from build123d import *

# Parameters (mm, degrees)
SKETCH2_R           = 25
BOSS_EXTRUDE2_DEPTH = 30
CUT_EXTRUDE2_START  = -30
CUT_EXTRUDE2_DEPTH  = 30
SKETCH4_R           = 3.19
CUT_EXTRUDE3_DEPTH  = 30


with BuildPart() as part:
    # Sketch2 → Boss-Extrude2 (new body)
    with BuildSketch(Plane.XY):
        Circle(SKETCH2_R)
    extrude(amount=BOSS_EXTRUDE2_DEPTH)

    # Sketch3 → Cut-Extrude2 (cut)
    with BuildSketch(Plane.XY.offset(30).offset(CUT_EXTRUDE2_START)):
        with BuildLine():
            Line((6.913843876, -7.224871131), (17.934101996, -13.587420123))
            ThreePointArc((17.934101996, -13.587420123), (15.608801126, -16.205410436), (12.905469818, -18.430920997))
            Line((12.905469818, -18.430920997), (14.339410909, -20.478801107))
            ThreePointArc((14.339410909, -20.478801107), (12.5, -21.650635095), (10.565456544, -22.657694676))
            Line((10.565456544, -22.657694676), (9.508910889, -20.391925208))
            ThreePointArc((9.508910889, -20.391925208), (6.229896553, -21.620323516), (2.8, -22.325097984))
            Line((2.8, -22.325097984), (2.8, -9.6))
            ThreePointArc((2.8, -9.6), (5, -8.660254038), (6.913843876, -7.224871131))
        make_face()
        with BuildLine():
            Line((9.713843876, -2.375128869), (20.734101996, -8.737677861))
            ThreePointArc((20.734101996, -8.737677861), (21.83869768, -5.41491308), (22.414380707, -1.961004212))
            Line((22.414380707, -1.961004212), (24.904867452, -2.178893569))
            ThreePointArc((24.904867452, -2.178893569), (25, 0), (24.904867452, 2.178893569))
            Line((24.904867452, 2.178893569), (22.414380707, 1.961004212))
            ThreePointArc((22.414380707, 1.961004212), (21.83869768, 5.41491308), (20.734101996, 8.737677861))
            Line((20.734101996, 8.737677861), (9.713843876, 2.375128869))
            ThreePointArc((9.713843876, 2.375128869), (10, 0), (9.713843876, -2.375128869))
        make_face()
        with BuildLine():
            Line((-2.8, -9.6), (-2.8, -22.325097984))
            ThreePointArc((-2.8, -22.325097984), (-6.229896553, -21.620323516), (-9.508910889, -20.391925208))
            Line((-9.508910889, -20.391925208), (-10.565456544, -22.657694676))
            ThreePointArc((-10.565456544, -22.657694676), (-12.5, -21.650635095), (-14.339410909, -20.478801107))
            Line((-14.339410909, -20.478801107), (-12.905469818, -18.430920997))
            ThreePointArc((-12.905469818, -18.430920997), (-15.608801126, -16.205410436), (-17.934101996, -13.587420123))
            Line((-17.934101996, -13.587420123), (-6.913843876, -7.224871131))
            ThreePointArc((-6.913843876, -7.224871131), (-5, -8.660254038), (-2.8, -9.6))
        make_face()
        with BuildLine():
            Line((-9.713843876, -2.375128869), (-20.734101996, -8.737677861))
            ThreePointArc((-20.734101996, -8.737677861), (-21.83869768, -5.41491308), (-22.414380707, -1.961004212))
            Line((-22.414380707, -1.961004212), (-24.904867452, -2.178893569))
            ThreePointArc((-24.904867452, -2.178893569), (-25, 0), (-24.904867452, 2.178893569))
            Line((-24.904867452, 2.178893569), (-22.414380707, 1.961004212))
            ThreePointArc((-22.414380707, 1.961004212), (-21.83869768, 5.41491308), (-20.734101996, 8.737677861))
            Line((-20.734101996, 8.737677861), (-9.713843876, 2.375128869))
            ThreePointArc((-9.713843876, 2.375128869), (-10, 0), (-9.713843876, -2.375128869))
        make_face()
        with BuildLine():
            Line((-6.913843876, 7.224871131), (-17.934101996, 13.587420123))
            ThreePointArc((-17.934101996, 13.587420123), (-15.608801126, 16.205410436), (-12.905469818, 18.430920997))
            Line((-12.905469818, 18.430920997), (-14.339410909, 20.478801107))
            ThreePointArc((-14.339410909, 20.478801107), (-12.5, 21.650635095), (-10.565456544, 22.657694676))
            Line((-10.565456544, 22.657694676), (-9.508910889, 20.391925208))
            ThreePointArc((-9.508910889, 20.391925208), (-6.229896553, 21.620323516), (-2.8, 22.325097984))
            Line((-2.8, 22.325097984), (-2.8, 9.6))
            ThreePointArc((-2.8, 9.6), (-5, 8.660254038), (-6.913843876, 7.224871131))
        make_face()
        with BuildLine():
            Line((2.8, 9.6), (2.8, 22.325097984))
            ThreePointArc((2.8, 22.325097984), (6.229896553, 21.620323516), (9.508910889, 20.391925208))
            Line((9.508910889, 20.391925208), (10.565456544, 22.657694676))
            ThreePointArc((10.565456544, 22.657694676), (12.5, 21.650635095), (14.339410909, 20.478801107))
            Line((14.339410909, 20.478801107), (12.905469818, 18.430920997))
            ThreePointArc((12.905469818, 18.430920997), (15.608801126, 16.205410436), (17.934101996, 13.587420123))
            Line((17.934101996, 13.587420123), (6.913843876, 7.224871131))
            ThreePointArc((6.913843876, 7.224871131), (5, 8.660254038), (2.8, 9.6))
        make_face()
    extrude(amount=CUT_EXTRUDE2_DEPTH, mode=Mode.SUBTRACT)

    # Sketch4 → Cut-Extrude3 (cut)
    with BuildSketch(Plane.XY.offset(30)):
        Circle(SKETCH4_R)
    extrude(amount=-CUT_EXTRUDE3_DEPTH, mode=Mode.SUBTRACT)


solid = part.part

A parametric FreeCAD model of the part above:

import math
import FreeCAD as App
import Part
import Sketcher

V = App.Vector
Q = App.Units.Quantity

doc = App.newDocument("Part")
body = doc.addObject("PartDesign::Body", "Body")

sketch1 = body.newObject("Sketcher::SketchObject", "Sketch")
sketch1.AttachmentSupport = (doc.getObject("XY_Plane"), [""])
sketch1.MapMode = "FlatFace"
sketch1.addGeometry(Part.Circle(V(0, 0, 0), V(0, 0, 1), 25), False)
sketch1.addConstraint([
    Sketcher.Constraint("Coincident", 0, 3, -1, 1),
    Sketcher.Constraint("Diameter", 0, Q("50 mm")),
])
pad1 = body.newObject("PartDesign::Pad", "Pad")
pad1.Profile = sketch1
pad1.Length = 30

sketch2 = body.newObject("Sketcher::SketchObject", "Sketch001")
sketch2.AttachmentSupport = (doc.getObject("XY_Plane"), [""])
sketch2.MapMode = "FlatFace"
sketch2.addGeometry([
    Part.LineSegment(V(17.9, -13.6, 0), V(6.9, -7.2, 0)),
    Part.ArcOfCircle(Part.Circle(V(0, 0, 0), V(0, 0, 1), 10), math.radians(-74), math.radians(-46)),
    Part.LineSegment(V(2.8, -9.6, 0), V(2.8, -22.3, 0)),
    Part.ArcOfCircle(Part.Circle(V(0, 0, 0), V(0, 0, 1), 22.5), math.radians(-82.85), math.radians(-65)),
    Part.LineSegment(V(9.5, -20.4, 0), V(10.6, -22.7, 0)),
    Part.ArcOfCircle(Part.Circle(V(0, 0, 0), V(0, 0, 1), 25), math.radians(-65), math.radians(-55)),
    Part.LineSegment(V(14.3, -20.5, 0), V(12.9, -18.4, 0)),
    Part.ArcOfCircle(Part.Circle(V(0, 0, 0), V(0, 0, 1), 22.5), math.radians(-55), math.radians(-37.15)),
    Part.LineSegment(V(9.7, -2.4, 0), V(20.7, -8.7, 0)),
    Part.ArcOfCircle(Part.Circle(V(0, 0, 0), V(0, 0, 1), 22.5), math.radians(-22.85), math.radians(-5)),
    Part.LineSegment(V(22.4, -2, 0), V(24.9, -2.2, 0)),
    Part.ArcOfCircle(Part.Circle(V(0, 0, 0), V(0, 0, 1), 25), math.radians(-5), math.radians(5)),
    Part.LineSegment(V(24.9, 2.2, 0), V(22.4, 2, 0)),
    Part.ArcOfCircle(Part.Circle(V(0, 0, 0), V(0, 0, 1), 22.5), math.radians(5), math.radians(22.85)),
    Part.LineSegment(V(20.7, 8.7, 0), V(9.7, 2.4, 0)),
    Part.ArcOfCircle(Part.Circle(V(0, 0, 0), V(0, 0, 1), 10), math.radians(-14), math.radians(14)),
    Part.LineSegment(V(-2.8, -22.3, 0), V(-2.8, -9.6, 0)),
    Part.ArcOfCircle(Part.Circle(V(0, 0, 0), V(0, 0, 1), 10), math.radians(-134), math.radians(-106)),
    Part.LineSegment(V(-6.9, -7.2, 0), V(-17.9, -13.6, 0)),
    Part.ArcOfCircle(Part.Circle(V(0, 0, 0), V(0, 0, 1), 22.5), math.radians(-142.85), math.radians(-125)),
    Part.LineSegment(V(-12.9, -18.4, 0), V(-14.3, -20.5, 0)),
    Part.ArcOfCircle(Part.Circle(V(0, 0, 0), V(0, 0, 1), 25), math.radians(-125), math.radians(-115)),
    Part.LineSegment(V(-10.6, -22.7, 0), V(-9.5, -20.4, 0)),
    Part.ArcOfCircle(Part.Circle(V(0, 0, 0), V(0, 0, 1), 22.5), math.radians(-115), math.radians(-97.15)),
    Part.LineSegment(V(-20.7, -8.7, 0), V(-9.7, -2.4, 0)),
    Part.ArcOfCircle(Part.Circle(V(0, 0, 0), V(0, 0, 1), 10), math.radians(166), math.radians(194)),
    Part.LineSegment(V(-9.7, 2.4, 0), V(-20.7, 8.7, 0)),
    Part.ArcOfCircle(Part.Circle(V(0, 0, 0), V(0, 0, 1), 22.5), math.radians(157.15), math.radians(175)),
    Part.LineSegment(V(-22.4, 2, 0), V(-24.9, 2.2, 0)),
    Part.ArcOfCircle(Part.Circle(V(0, 0, 0), V(0, 0, 1), 25), math.radians(175), math.radians(185)),
    Part.LineSegment(V(-24.9, -2.2, 0), V(-22.4, -2, 0)),
    Part.ArcOfCircle(Part.Circle(V(0, 0, 0), V(0, 0, 1), 22.5), math.radians(-175), math.radians(-157.15)),
    Part.LineSegment(V(-17.9, 13.6, 0), V(-6.9, 7.2, 0)),
    Part.ArcOfCircle(Part.Circle(V(0, 0, 0), V(0, 0, 1), 10), math.radians(106), math.radians(134)),
    Part.LineSegment(V(-2.8, 9.6, 0), V(-2.8, 22.3, 0)),
    Part.ArcOfCircle(Part.Circle(V(0, 0, 0), V(0, 0, 1), 22.5), math.radians(97.15), math.radians(115)),
    Part.LineSegment(V(-9.5, 20.4, 0), V(-10.6, 22.7, 0)),
    Part.ArcOfCircle(Part.Circle(V(0, 0, 0), V(0, 0, 1), 25), math.radians(115), math.radians(125)),
    Part.LineSegment(V(-14.3, 20.5, 0), V(-12.9, 18.4, 0)),
    Part.ArcOfCircle(Part.Circle(V(0, 0, 0), V(0, 0, 1), 22.5), math.radians(125), math.radians(142.85)),
    Part.LineSegment(V(2.8, 22.3, 0), V(2.8, 9.6, 0)),
    Part.ArcOfCircle(Part.Circle(V(0, 0, 0), V(0, 0, 1), 10), math.radians(46), math.radians(74)),
    Part.LineSegment(V(6.9, 7.2, 0), V(17.9, 13.6, 0)),
    Part.ArcOfCircle(Part.Circle(V(0, 0, 0), V(0, 0, 1), 22.5), math.radians(37.15), math.radians(55)),
    Part.LineSegment(V(12.9, 18.4, 0), V(14.3, 20.5, 0)),
    Part.ArcOfCircle(Part.Circle(V(0, 0, 0), V(0, 0, 1), 25), math.radians(55), math.radians(65)),
    Part.LineSegment(V(10.6, 22.7, 0), V(9.5, 20.4, 0)),
    Part.ArcOfCircle(Part.Circle(V(0, 0, 0), V(0, 0, 1), 22.5), math.radians(65), math.radians(82.85)),
], False)
sketch2.addConstraint([
    Sketcher.Constraint("Coincident", 0, 2, 1, 2),
    Sketcher.Constraint("Coincident", 1, 1, 2, 1),
    Sketcher.Constraint("Coincident", 2, 2, 3, 1),
    Sketcher.Constraint("Coincident", 3, 2, 4, 1),
    Sketcher.Constraint("Coincident", 4, 2, 5, 1),
    Sketcher.Constraint("Coincident", 5, 2, 6, 1),
    Sketcher.Constraint("Coincident", 6, 2, 7, 1),
    Sketcher.Constraint("Coincident", 7, 2, 0, 1),
    Sketcher.Constraint("Coincident", 8, 2, 9, 1),
    Sketcher.Constraint("Coincident", 9, 2, 10, 1),
    Sketcher.Constraint("Coincident", 10, 2, 11, 1),
    Sketcher.Constraint("Coincident", 11, 2, 12, 1),
    Sketcher.Constraint("Coincident", 12, 2, 13, 1),
    Sketcher.Constraint("Coincident", 13, 2, 14, 1),
    Sketcher.Constraint("Coincident", 14, 2, 15, 2),
    Sketcher.Constraint("Coincident", 15, 1, 8, 1),
    Sketcher.Constraint("Coincident", 16, 2, 17, 2),
    Sketcher.Constraint("Coincident", 17, 1, 18, 1),
    Sketcher.Constraint("Coincident", 18, 2, 19, 1),
    Sketcher.Constraint("Coincident", 19, 2, 20, 1),
    Sketcher.Constraint("Coincident", 20, 2, 21, 1),
    Sketcher.Constraint("Coincident", 21, 2, 22, 1),
    Sketcher.Constraint("Coincident", 22, 2, 23, 1),
    Sketcher.Constraint("Coincident", 23, 2, 16, 1),
    Sketcher.Constraint("Coincident", 24, 2, 25, 2),
    Sketcher.Constraint("Coincident", 25, 1, 26, 1),
    Sketcher.Constraint("Coincident", 26, 2, 27, 1),
    Sketcher.Constraint("Coincident", 27, 2, 28, 1),
    Sketcher.Constraint("Coincident", 28, 2, 29, 1),
    Sketcher.Constraint("Coincident", 29, 2, 30, 1),
    Sketcher.Constraint("Coincident", 30, 2, 31, 1),
    Sketcher.Constraint("Coincident", 31, 2, 24, 1),
    Sketcher.Constraint("Coincident", 32, 2, 33, 2),
    Sketcher.Constraint("Coincident", 33, 1, 34, 1),
    Sketcher.Constraint("Coincident", 34, 2, 35, 1),
    Sketcher.Constraint("Coincident", 35, 2, 36, 1),
    Sketcher.Constraint("Coincident", 36, 2, 37, 1),
    Sketcher.Constraint("Coincident", 37, 2, 38, 1),
    Sketcher.Constraint("Coincident", 38, 2, 39, 1),
    Sketcher.Constraint("Coincident", 39, 2, 32, 1),
    Sketcher.Constraint("Coincident", 40, 2, 41, 2),
    Sketcher.Constraint("Coincident", 41, 1, 42, 1),
    Sketcher.Constraint("Coincident", 42, 2, 43, 1),
    Sketcher.Constraint("Coincident", 43, 2, 44, 1),
    Sketcher.Constraint("Coincident", 44, 2, 45, 1),
    Sketcher.Constraint("Coincident", 45, 2, 46, 1),
    Sketcher.Constraint("Coincident", 46, 2, 47, 1),
    Sketcher.Constraint("Coincident", 47, 2, 40, 1),
    Sketcher.Constraint("Vertical", 2),
    Sketcher.Constraint("Vertical", 16),
    Sketcher.Constraint("Vertical", 34),
    Sketcher.Constraint("Vertical", 40),
    Sketcher.Constraint("Coincident", 1, 3, -1, 1),
    Sketcher.Constraint("Coincident", 3, 3, -1, 1),
    Sketcher.Constraint("Coincident", 5, 3, -1, 1),
    Sketcher.Constraint("Coincident", 7, 3, -1, 1),
    Sketcher.Constraint("Coincident", 9, 3, -1, 1),
    Sketcher.Constraint("Coincident", 11, 3, -1, 1),
    Sketcher.Constraint("Coincident", 13, 3, -1, 1),
    Sketcher.Constraint("Coincident", 15, 3, -1, 1),
    Sketcher.Constraint("Coincident", 17, 3, -1, 1),
    Sketcher.Constraint("Coincident", 19, 3, -1, 1),
    Sketcher.Constraint("Coincident", 21, 3, -1, 1),
    Sketcher.Constraint("Coincident", 23, 3, -1, 1),
    Sketcher.Constraint("Coincident", 25, 3, -1, 1),
    Sketcher.Constraint("Coincident", 27, 3, -1, 1),
    Sketcher.Constraint("Coincident", 29, 3, -1, 1),
    Sketcher.Constraint("Coincident", 31, 3, -1, 1),
    Sketcher.Constraint("Coincident", 33, 3, -1, 1),
    Sketcher.Constraint("Coincident", 35, 3, -1, 1),
    Sketcher.Constraint("Coincident", 37, 3, -1, 1),
    Sketcher.Constraint("Coincident", 39, 3, -1, 1),
    Sketcher.Constraint("Coincident", 41, 3, -1, 1),
    Sketcher.Constraint("Coincident", 43, 3, -1, 1),
    Sketcher.Constraint("Coincident", 45, 3, -1, 1),
    Sketcher.Constraint("Coincident", 47, 3, -1, 1),
    Sketcher.Constraint("Equal", 3, 7),
    Sketcher.Constraint("Equal", 7, 9),
    Sketcher.Constraint("Equal", 5, 11),
    Sketcher.Constraint("Equal", 9, 13),
    Sketcher.Constraint("Equal", 1, 15),
    Sketcher.Constraint("Equal", 15, 17),
    Sketcher.Constraint("Equal", 13, 19),
    Sketcher.Constraint("Equal", 11, 21),
    Sketcher.Constraint("Equal", 19, 23),
    Sketcher.Constraint("Equal", 17, 25),
    Sketcher.Constraint("Equal", 23, 27),
    Sketcher.Constraint("Equal", 21, 29),
    Sketcher.Constraint("Equal", 27, 31),
    Sketcher.Constraint("Equal", 25, 33),
    Sketcher.Constraint("Equal", 31, 35),
    Sketcher.Constraint("Equal", 29, 37),
    Sketcher.Constraint("Equal", 35, 39),
    Sketcher.Constraint("Equal", 33, 41),
    Sketcher.Constraint("Equal", 39, 43),
    Sketcher.Constraint("Equal", 37, 45),
    Sketcher.Constraint("Equal", 43, 47),
    Sketcher.Constraint("Parallel", 0, 8),
    Sketcher.Constraint("Parallel", 14, 18),
    Sketcher.Constraint("Parallel", 18, 24),
    Sketcher.Constraint("Parallel", 8, 26),
    Sketcher.Constraint("Parallel", 10, 28),
    Sketcher.Constraint("Parallel", 12, 30),
    Sketcher.Constraint("Parallel", 26, 32),
    Sketcher.Constraint("Parallel", 4, 36),
    Sketcher.Constraint("Parallel", 6, 38),
    Sketcher.Constraint("Parallel", 24, 42),
    Sketcher.Constraint("Parallel", 20, 44),
    Sketcher.Constraint("Parallel", 22, 46),
    Sketcher.Constraint("Horizontal", 1, 1, 16, 2),
    Sketcher.Constraint("Horizontal", 0, 2, 17, 1),
    Sketcher.Constraint("Horizontal", 7, 2, 18, 2),
    Sketcher.Constraint("Horizontal", 6, 2, 19, 2),
    Sketcher.Constraint("Horizontal", 5, 2, 20, 2),
    Sketcher.Constraint("Horizontal", 4, 2, 21, 2),
    Sketcher.Constraint("Horizontal", 3, 2, 22, 2),
    Sketcher.Constraint("Horizontal", 15, 1, 24, 2),
    Sketcher.Constraint("Horizontal", 14, 2, 25, 1),
    Sketcher.Constraint("Horizontal", 12, 2, 27, 2),
    Sketcher.Constraint("Horizontal", 11, 2, 28, 2),
    Sketcher.Constraint("Horizontal", 10, 2, 29, 2),
    Sketcher.Constraint("Horizontal", 33, 1, 40, 2),
    Sketcher.Constraint("Horizontal", 32, 2, 41, 1),
    Sketcher.Constraint("Horizontal", 38, 2, 43, 2),
    Sketcher.Constraint("Horizontal", 36, 2, 45, 2),
    Sketcher.Constraint("Vertical", 10, 2, 11, 2),
    Sketcher.Constraint("Vertical", 8, 2, 13, 2),
    Sketcher.Constraint("Vertical", 17, 1, 32, 2),
    Sketcher.Constraint("Vertical", 23, 2, 33, 1),
    Sketcher.Constraint("Vertical", 22, 2, 35, 2),
    Sketcher.Constraint("Vertical", 20, 2, 37, 2),
    Sketcher.Constraint("Equal", 0, 8),
    Sketcher.Constraint("Radius", 1, Q("10 mm")),
    Sketcher.Constraint("Radius", 5, Q("25 mm")),
    Sketcher.Constraint("Radius", 3, Q("22.5 mm")),
    Sketcher.Constraint("Angle", 0, Q("150 deg")),
    Sketcher.Constraint("Angle", 4, Q("-65 deg")),
    Sketcher.Constraint("Angle", 6, Q("125 deg")),
    Sketcher.Constraint("Angle", 10, Q("-5 deg")),
    Sketcher.Constraint("DistanceX", -1, 1, 1, 1, Q("2.8 mm")),
    Sketcher.Constraint("DistanceY", 5, 2, -1, 1, Q("20.478801 mm")),
    Sketcher.Constraint("DistanceX", -1, 1, 7, 2, Q("17.934102 mm")),
    Sketcher.Constraint("DistanceX", -1, 1, 3, 2, Q("9.508911 mm")),
    Sketcher.Constraint("DistanceX", -1, 1, 9, 2, Q("22.414381 mm")),
])
pocket1 = body.newObject("PartDesign::Pocket", "Pocket")
pocket1.Profile = sketch2
pocket1.Length = 30
pocket1.Reversed = True

sketch3 = body.newObject("Sketcher::SketchObject", "Sketch002")
sketch3.AttachmentSupport = (doc.getObject("XY_Plane"), [""])
sketch3.MapMode = "FlatFace"
sketch3.AttachmentOffset = App.Placement(V(0, 0, 30), App.Rotation())
sketch3.addGeometry(Part.Circle(V(0, 0, 0), V(0, 0, 1), 3.2), False)
sketch3.addConstraint([
    Sketcher.Constraint("Coincident", 0, 3, -1, 1),
    Sketcher.Constraint("Diameter", 0, Q("6.38 mm")),
])
pocket2 = body.newObject("PartDesign::Pocket", "Pocket001")
pocket2.Profile = sketch3
pocket2.Length = 30

doc.recompute()
